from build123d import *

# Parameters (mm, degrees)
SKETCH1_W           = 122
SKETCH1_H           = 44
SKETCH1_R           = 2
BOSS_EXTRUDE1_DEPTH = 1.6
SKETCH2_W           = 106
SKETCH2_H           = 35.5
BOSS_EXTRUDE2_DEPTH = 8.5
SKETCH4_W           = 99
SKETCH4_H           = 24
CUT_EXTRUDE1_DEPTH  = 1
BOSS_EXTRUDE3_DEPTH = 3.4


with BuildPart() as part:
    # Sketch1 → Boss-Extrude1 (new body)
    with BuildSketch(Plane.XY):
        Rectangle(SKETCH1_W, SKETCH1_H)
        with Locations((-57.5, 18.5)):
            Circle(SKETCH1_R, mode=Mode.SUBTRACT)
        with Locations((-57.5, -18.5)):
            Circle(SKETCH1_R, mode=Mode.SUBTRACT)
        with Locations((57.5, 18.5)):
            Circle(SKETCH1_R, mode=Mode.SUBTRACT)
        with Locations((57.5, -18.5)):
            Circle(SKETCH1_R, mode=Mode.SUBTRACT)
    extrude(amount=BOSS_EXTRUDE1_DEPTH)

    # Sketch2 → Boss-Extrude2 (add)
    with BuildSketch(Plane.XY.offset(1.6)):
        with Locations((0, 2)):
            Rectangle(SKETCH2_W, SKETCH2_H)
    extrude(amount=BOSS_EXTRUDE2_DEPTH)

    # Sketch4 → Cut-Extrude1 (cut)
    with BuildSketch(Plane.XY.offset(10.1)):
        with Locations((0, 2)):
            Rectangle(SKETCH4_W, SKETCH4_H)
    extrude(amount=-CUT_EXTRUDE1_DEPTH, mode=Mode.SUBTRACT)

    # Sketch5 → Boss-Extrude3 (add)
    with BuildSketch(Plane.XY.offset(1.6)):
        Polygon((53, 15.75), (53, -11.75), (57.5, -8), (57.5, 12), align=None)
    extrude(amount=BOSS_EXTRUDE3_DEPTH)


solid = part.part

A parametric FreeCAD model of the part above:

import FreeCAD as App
import Part
import Sketcher

V = App.Vector
Q = App.Units.Quantity

doc = App.newDocument("Part")
body = doc.addObject("PartDesign::Body", "Body")

# Sketch on XY plane
sketch1 = doc.addObject("Sketcher::SketchObject", "Sketch")
body.addObject(sketch1)
sketch1.AttachmentSupport = (doc.XY_Plane, [""])
sketch1.MapMode = "FlatFace"
sketch1.addGeometry([
    Part.LineSegment(V(-61, 22, 0), V(-61, -22, 0)),  # 0
    Part.LineSegment(V(-61, -22, 0), V(61, -22, 0)),  # 1
    Part.LineSegment(V(61, -22, 0), V(61, 22, 0)),  # 2
    Part.LineSegment(V(61, 22, 0), V(-61, 22, 0)),  # 3
    Part.Circle(V(-57.5, -18.5, 0), V(0, 0, 1), 2),  # 4
    Part.Circle(V(57.5, -18.5, 0), V(0, 0, 1), 2),  # 5
    Part.Circle(V(-57.5, 18.5, 0), V(0, 0, 1), 2),  # 6
    Part.Circle(V(57.5, 18.5, 0), V(0, 0, 1), 2),  # 7
], False)
sketch1.addConstraint([
    Sketcher.Constraint("Coincident", 0, 2, 1, 1),
    Sketcher.Constraint("Coincident", 1, 2, 2, 1),
    Sketcher.Constraint("Coincident", 2, 2, 3, 1),
    Sketcher.Constraint("Coincident", 3, 2, 0, 1),
    Sketcher.Constraint("Vertical", 0),
    Sketcher.Constraint("Horizontal", 1),
    Sketcher.Constraint("Vertical", 2),
    Sketcher.Constraint("Horizontal", 3),
    Sketcher.Constraint("Equal", 4, 5),
    Sketcher.Constraint("Equal", 5, 6),
    Sketcher.Constraint("Equal", 6, 7),
    Sketcher.Constraint("Symmetric", 5, 3, 6, 3, -1, 1),
    Sketcher.Constraint("Symmetric", 4, 3, 7, 3, -1, 1),
    Sketcher.Constraint("Symmetric", 0, 2, 2, 2, -1, 1),
    Sketcher.Constraint("Symmetric", 4, 3, 5, 3, -2),
    Sketcher.Constraint("Diameter", 4, Q("4 mm")),
    Sketcher.Constraint("DistanceX", 1, 1, 1, 2, Q("122 mm")),
    Sketcher.Constraint("DistanceY", 0, 2, 0, 1, Q("44 mm")),
    Sketcher.Constraint("DistanceX", 4, 3, 5, 3, Q("115 mm")),
    Sketcher.Constraint("DistanceY", 4, 3, 6, 3, Q("37 mm")),
])
pad1 = doc.addObject("PartDesign::Pad", "Pad")
body.addObject(pad1)
pad1.Profile = sketch1
pad1.Length = 1.6

# Sketch on XY plane
sketch2 = doc.addObject("Sketcher::SketchObject", "Sketch001")
body.addObject(sketch2)
sketch2.AttachmentSupport = (doc.XY_Plane, [""])
sketch2.MapMode = "FlatFace"
sketch2.AttachmentOffset = App.Placement(V(0, 0, 1.6), App.Rotation())
sketch2.addGeometry([
    Part.LineSegment(V(-53, 20, 0), V(-53, -16, 0)),
    Part.LineSegment(V(-53, -16, 0), V(53, -16, 0)),
    Part.LineSegment(V(53, -16, 0), V(53, 20, 0)),
    Part.LineSegment(V(53, 20, 0), V(-53, 20, 0)),
], False)
sketch2.addConstraint([
    Sketcher.Constraint("Coincident", 0, 2, 1, 1),
    Sketcher.Constraint("Coincident", 1, 2, 2, 1),
    Sketcher.Constraint("Coincident", 2, 2, 3, 1),
    Sketcher.Constraint("Coincident", 3, 2, 0, 1),
    Sketcher.Constraint("Vertical", 0),
    Sketcher.Constraint("Horizontal", 1),
    Sketcher.Constraint("Vertical", 2),
    Sketcher.Constraint("Horizontal", 3),
    Sketcher.Constraint("DistanceX", 1, 1, 1, 2, Q("106 mm")),
    Sketcher.Constraint("DistanceY", 0, 2, 0, 1, Q("35.5 mm")),
    Sketcher.Constraint("DistanceX", 0, 2, -1, 1, Q("53 mm")),
    Sketcher.Constraint("DistanceY", 0, 2, -1, 1, Q("15.75 mm")),
])
pad2 = doc.addObject("PartDesign::Pad", "Pad001")
body.addObject(pad2)
pad2.Profile = sketch2
pad2.Length = 8.5

# Sketch on XY plane
sketch3 = doc.addObject("Sketcher::SketchObject", "Sketch002")
body.addObject(sketch3)
sketch3.AttachmentSupport = (doc.XY_Plane, [""])
sketch3.MapMode = "FlatFace"
sketch3.AttachmentOffset = App.Placement(V(0, 0, 10.1), App.Rotation())
sketch3.addGeometry([
    Part.LineSegment(V(-50, 14, 0), V(-50, -10, 0)),
    Part.LineSegment(V(-50, -10, 0), V(50, -10, 0)),
    Part.LineSegment(V(50, -10, 0), V(50, 14, 0)),
    Part.LineSegment(V(50, 14, 0), V(-50, 14, 0)),
], False)
sketch3.addConstraint([
    Sketcher.Constraint("Coincident", 0, 2, 1, 1),
    Sketcher.Constraint("Coincident", 1, 2, 2, 1),
    Sketcher.Constraint("Coincident", 2, 2, 3, 1),
    Sketcher.Constraint("Coincident", 3, 2, 0, 1),
    Sketcher.Constraint("Vertical", 0),
    Sketcher.Constraint("Horizontal", 1),
    Sketcher.Constraint("Vertical", 2),
    Sketcher.Constraint("Horizontal", 3),
    Sketcher.Constraint("DistanceX", 1, 1, 1, 2, Q("99 mm")),
    Sketcher.Constraint("DistanceY", 0, 2, 0, 1, Q("24 mm")),
    Sketcher.Constraint("DistanceY", 0, 2, -1, 1, Q("10 mm")),
    Sketcher.Constraint("DistanceX", 0, 2, -1, 1, Q("49.5 mm")),
])
pocket1 = doc.addObject("PartDesign::Pocket", "Pocket")
body.addObject(pocket1)
pocket1.Profile = sketch3
pocket1.Length = 1

# Sketch on XY plane
sketch4 = doc.addObject("Sketcher::SketchObject", "Sketch003")
body.addObject(sketch4)
sketch4.AttachmentSupport = (doc.XY_Plane, [""])
sketch4.MapMode = "FlatFace"
sketch4.AttachmentOffset = App.Placement(V(0, 0, 1.6), App.Rotation())
sketch4.addGeometry([
    Part.LineSegment(V(53, 16, 0), V(53, -12, 0)),
    Part.LineSegment(V(53, -12, 0), V(58, -8, 0)),
    Part.LineSegment(V(58, -8, 0), V(58, 12, 0)),
    Part.LineSegment(V(58, 12, 0), V(53, 16, 0)),
], False)
sketch4.addConstraint([
    Sketcher.Constraint("Coincident", 0, 2, 1, 1),
    Sketcher.Constraint("Coincident", 1, 2, 2, 1),
    Sketcher.Constraint("Coincident", 2, 2, 3, 1),
    Sketcher.Constraint("Coincident", 3, 2, 0, 1),
    Sketcher.Constraint("Vertical", 0),
    Sketcher.Constraint("Vertical", 2),
    Sketcher.Constraint("Equal", 1, 3),
    Sketcher.Constraint("DistanceY", 2, 1, 2, 2, Q("20 mm")),
    Sketcher.Constraint("DistanceY", 0, 2, 0, 1, Q("27.5 mm")),
    Sketcher.Constraint("DistanceX", -1, 1, 0, 2, Q("53 mm")),
    Sketcher.Constraint("DistanceY", 1, 2, -1, 1, Q("8 mm")),
    Sketcher.Constraint("DistanceX", -1, 1, 1, 2, Q("57.5 mm")),
])
pad3 = doc.addObject("PartDesign::Pad", "Pad002")
body.addObject(pad3)
pad3.Profile = sketch4
pad3.Length = 3.4

doc.recompute()
